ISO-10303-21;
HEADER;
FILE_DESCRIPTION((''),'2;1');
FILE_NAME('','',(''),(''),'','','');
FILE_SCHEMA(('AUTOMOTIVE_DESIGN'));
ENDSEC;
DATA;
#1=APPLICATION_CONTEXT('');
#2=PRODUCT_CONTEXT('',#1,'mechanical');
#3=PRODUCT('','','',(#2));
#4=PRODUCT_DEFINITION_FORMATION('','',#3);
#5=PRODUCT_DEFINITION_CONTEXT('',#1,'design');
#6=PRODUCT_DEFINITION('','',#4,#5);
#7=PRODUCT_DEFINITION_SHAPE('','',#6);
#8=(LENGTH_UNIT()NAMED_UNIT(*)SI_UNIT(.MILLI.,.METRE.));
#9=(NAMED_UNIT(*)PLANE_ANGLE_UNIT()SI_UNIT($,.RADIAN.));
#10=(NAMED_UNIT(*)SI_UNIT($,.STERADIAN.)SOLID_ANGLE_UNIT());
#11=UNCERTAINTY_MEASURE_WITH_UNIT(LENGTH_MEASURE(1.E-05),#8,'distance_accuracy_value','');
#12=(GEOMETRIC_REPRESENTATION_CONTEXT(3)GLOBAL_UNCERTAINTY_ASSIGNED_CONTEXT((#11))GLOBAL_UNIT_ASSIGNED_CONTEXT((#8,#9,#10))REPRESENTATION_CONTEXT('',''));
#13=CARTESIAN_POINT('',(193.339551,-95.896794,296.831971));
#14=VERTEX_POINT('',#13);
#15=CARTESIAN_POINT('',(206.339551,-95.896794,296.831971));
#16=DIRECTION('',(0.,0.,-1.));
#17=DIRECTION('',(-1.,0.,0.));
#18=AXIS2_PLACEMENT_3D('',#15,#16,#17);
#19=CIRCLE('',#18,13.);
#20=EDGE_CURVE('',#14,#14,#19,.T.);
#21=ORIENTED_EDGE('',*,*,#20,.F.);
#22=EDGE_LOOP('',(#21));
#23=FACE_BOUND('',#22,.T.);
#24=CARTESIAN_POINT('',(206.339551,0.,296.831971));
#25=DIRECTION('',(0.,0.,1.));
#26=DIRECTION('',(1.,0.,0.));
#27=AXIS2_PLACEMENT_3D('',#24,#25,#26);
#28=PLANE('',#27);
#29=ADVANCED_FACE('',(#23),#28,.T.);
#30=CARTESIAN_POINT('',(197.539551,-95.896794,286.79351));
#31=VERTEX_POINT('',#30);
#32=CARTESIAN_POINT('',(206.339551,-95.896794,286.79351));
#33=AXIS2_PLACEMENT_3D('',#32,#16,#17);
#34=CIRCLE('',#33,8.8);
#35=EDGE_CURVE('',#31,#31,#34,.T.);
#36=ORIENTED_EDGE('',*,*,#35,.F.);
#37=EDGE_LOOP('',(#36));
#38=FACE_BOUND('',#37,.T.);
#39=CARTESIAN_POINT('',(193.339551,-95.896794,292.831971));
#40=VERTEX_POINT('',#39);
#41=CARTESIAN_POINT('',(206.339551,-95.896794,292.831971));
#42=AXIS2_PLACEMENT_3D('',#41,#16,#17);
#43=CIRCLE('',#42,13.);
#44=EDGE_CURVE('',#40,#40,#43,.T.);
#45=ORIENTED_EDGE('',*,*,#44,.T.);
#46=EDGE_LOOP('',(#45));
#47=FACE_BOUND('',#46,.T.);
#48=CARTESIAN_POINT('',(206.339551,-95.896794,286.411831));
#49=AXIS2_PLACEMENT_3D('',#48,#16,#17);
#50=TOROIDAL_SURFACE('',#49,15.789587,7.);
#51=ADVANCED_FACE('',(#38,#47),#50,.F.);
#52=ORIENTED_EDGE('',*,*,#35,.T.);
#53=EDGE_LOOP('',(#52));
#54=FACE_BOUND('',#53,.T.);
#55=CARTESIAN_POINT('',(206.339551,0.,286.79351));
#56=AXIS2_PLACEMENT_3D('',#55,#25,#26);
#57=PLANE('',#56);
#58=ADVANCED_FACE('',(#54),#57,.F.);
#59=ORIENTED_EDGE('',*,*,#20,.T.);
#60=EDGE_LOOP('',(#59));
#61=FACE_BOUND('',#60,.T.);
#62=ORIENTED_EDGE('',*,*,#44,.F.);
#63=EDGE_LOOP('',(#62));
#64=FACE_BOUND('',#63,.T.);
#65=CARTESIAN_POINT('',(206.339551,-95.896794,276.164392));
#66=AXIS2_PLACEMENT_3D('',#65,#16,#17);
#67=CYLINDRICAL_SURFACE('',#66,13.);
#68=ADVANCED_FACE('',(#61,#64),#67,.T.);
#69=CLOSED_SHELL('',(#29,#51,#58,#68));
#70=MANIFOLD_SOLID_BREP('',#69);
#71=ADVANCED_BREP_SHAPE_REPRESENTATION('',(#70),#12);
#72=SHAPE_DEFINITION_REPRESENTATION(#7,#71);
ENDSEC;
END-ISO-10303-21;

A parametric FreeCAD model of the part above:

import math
import FreeCAD as App
import Part
import Sketcher

V = App.Vector

doc = App.newDocument("Part")
body = doc.addObject("PartDesign::Body", "Body")

sketch1 = doc.addObject("Sketcher::SketchObject", "Sketch")
body.addObject(sketch1)
sketch1.AttachmentSupport = (doc.YZ_Plane, [""])
sketch1.MapMode = "FlatFace"
sketch1.AttachmentOffset = App.Placement(V(0, 0, 206.339551), App.Rotation())
sketch1.addGeometry(Part.LineSegment(V(-87.1, 286.8, 0), V(-95.9, 286.8, 0)), False)
sketch1.addGeometry(Part.LineSegment(V(-95.9, 286.8, 0), V(-95.9, 296.8, 0)), False)
sketch1.addGeometry(Part.LineSegment(V(-95.9, 296.8, 0), V(-82.9, 296.8, 0)), False)
sketch1.addGeometry(Part.LineSegment(V(-82.9, 296.8, 0), V(-82.9, 292.8, 0)), False)
sketch1.addGeometry(Part.ArcOfCircle(Part.Circle(V(-80.1, 286.4, 0), V(0, 0, 1), 7), math.radians(113), math.radians(177)), False)
sketch1.addGeometry(Part.LineSegment(V(-95.9, 286.4, 0), V(-95.9, 296.8, 0)), True)
sketch1.addConstraint(Sketcher.Constraint("Coincident", 0, 2, 1, 1))
sketch1.addConstraint(Sketcher.Constraint("Coincident", 1, 2, 2, 1))
sketch1.addConstraint(Sketcher.Constraint("Coincident", 2, 2, 3, 1))
sketch1.addConstraint(Sketcher.Constraint("Coincident", 3, 2, 4, 1))
sketch1.addConstraint(Sketcher.Constraint("Coincident", 4, 2, 0, 1))
sketch1.addConstraint(Sketcher.Constraint("Horizontal", 0))
sketch1.addConstraint(Sketcher.Constraint("Vertical", 1))
sketch1.addConstraint(Sketcher.Constraint("Horizontal", 2))
sketch1.addConstraint(Sketcher.Constraint("Vertical", 3))
sketch1.addConstraint(Sketcher.Constraint("Vertical", 5))
sketch1.addConstraint(Sketcher.Constraint("Coincident", 5, 2, 1, 2))
sketch1.addConstraint(Sketcher.Constraint("Horizontal", 4, 3, 5, 1))
sketch1.addConstraint(Sketcher.Constraint("Radius", 4, 7.0))
sketch1.addConstraint(Sketcher.Constraint("DistanceX", 2, 1, 2, 2, 13.0))
sketch1.addConstraint(Sketcher.Constraint("DistanceY", 3, 2, 3, 1, 4.0))
sketch1.addConstraint(Sketcher.Constraint("DistanceX", 0, 2, 0, 1, 8.8))
sketch1.addConstraint(Sketcher.Constraint("DistanceY", 1, 1, 1, 2, 10.038462))
sketch1.addConstraint(Sketcher.Constraint("DistanceY", -1, 1, 4, 3, 286.411831))
sketch1.addConstraint(Sketcher.Constraint("DistanceX", 4, 3, -1, 1, 80.107207))
revolution = doc.addObject("PartDesign::Revolution", "Revolution")
body.addObject(revolution)
revolution.Profile = sketch1
revolution.ReferenceAxis = (sketch1, ["Axis0"])
revolution.Angle = 360

doc.recompute()
